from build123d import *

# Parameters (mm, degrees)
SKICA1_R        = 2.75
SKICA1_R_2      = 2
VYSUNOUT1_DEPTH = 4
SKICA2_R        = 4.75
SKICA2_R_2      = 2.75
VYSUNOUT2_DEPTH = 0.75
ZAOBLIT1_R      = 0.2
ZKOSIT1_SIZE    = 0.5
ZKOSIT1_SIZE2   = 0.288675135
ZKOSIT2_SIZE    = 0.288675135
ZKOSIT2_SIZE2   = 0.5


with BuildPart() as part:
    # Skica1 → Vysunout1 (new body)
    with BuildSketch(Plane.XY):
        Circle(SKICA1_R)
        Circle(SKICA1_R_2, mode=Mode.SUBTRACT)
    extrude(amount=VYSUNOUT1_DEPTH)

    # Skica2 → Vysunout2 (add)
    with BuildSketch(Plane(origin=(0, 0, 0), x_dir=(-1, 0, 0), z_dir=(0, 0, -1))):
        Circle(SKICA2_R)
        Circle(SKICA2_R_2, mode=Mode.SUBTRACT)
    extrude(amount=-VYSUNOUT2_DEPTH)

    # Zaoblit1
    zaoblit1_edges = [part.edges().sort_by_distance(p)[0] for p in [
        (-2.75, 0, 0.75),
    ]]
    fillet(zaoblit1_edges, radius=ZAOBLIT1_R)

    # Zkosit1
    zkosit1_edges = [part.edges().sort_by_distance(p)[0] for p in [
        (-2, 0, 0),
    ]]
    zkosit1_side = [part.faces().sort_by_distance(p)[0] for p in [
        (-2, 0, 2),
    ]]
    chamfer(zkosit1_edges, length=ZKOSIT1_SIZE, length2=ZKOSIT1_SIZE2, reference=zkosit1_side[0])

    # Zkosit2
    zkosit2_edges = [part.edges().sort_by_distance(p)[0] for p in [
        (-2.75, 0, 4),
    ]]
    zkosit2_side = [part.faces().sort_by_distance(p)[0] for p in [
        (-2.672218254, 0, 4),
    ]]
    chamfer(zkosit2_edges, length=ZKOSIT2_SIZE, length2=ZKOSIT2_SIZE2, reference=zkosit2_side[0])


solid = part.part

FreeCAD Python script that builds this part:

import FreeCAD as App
import Part
import Sketcher
Q = App.Units.Quantity


def edges_at(feature, points):
    """Names of the edges that pass closest to the given points."""
    edges = feature.Shape.Edges
    near = lambda p: min(range(len(edges)), key=lambda i: edges[i].distToShape(Part.Vertex(*p))[0])
    return sorted({f"Edge{near(p) + 1}" for p in points})

doc = App.newDocument("Part")
body = doc.addObject("PartDesign::Body", "Body")

# Sketch on XY plane
sketch1 = body.newObject("Sketcher::SketchObject", "Sketch")
sketch1.AttachmentSupport = (doc.getObject("XY_Plane"), [""])
sketch1.MapMode = "FlatFace"
sketch1.addGeometry(Part.Circle(App.Vector(0, 0, 0), App.Vector(0, 0, 1), 2.75), False)
sketch1.addGeometry(Part.Circle(App.Vector(0, 0, 0), App.Vector(0, 0, 1), 2), False)
sketch1.addConstraint(Sketcher.Constraint("Coincident", 0, 3, -1, 1))
sketch1.addConstraint(Sketcher.Constraint("Coincident", 1, 3, -1, 1))
sketch1.addConstraint(Sketcher.Constraint("Diameter", 1, Q("4 mm")))
sketch1.addConstraint(Sketcher.Constraint("Diameter", 0, Q("5.5 mm")))
pad1 = body.newObject("PartDesign::Pad", "Pad")
pad1.Profile = sketch1
pad1.Length = 4

# Sketch on XY plane
sketch2 = body.newObject("Sketcher::SketchObject", "Sketch001")
sketch2.AttachmentSupport = (doc.getObject("XY_Plane"), [""])
sketch2.MapMode = "FlatFace"
sketch2.addGeometry(Part.Circle(App.Vector(0, 0, 0), App.Vector(0, 0, 1), 4.75), False)
sketch2.addGeometry(Part.Circle(App.Vector(0, 0, 0), App.Vector(0, 0, 1), 2.75), False)
sketch2.addConstraint(Sketcher.Constraint("Coincident", 0, 3, -1, 1))
sketch2.addConstraint(Sketcher.Constraint("Coincident", 1, 3, -1, 1))
sketch2.addConstraint(Sketcher.Constraint("Diameter", 0, Q("9.5 mm")))
sketch2.addConstraint(Sketcher.Constraint("Diameter", 1, Q("5.5 mm")))
pad2 = body.newObject("PartDesign::Pad", "Pad001")
pad2.Profile = sketch2
pad2.Length = 0.75
doc.recompute()

fillet = body.newObject("PartDesign::Fillet", "Fillet")
fillet.Base = (pad2, edges_at(pad2, [(-2.75, 0, 0.75)]))
fillet.Radius = 0.2
doc.recompute()

chamfer = body.newObject("PartDesign::Chamfer", "Chamfer")
chamfer.Base = (fillet, edges_at(fillet, [(-2, 0, 0)]))
chamfer.ChamferType = "Two distances"
chamfer.Size = 0.5
chamfer.Size2 = 0.288675
doc.recompute()

chamfer2 = body.newObject("PartDesign::Chamfer", "Chamfer001")
chamfer2.Base = (chamfer, edges_at(chamfer, [(-2.75, 0, 4)]))
chamfer2.ChamferType = "Two distances"
chamfer2.Size = 0.288675
chamfer2.Size2 = 0.5

doc.recompute()
